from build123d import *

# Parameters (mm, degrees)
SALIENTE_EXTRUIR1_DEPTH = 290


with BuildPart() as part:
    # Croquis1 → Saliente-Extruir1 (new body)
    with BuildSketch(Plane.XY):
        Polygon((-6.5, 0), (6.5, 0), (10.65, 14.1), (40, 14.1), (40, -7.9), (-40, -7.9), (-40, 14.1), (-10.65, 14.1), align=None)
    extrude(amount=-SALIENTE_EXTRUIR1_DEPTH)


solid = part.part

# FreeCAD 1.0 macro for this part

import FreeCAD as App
import Part
import Sketcher

doc = App.newDocument("Part")
params = doc.addObject("Spreadsheet::Sheet", "Params")
for row, (alias, value) in enumerate([
    ("sketch1_width", "13 mm"),
    ("sketch1_width2", "80 mm"),
    ("sketch1_height", "22 mm"),
    ("sketch1_width3", "29.35 mm"),
    ("pad1_length", "290 mm"),
], start=1):
    params.set(f"A{row}", alias)
    params.set(f"B{row}", "=" + value)
    params.setAlias(f"B{row}", alias)

body = doc.addObject("PartDesign::Body", "Body")

sketch1 = body.newObject("Sketcher::SketchObject", "Sketch")
sketch1.AttachmentSupport = (doc.getObject("XY_Plane"), [""])
sketch1.MapMode = "FlatFace"
sketch1.addGeometry(Part.LineSegment(App.Vector(6.5, 0, 0), App.Vector(-6.5, 0, 0)), False)
sketch1.addGeometry(Part.LineSegment(App.Vector(-6.5, 0, 0), App.Vector(-10.65, 14.1, 0)), False)
sketch1.addGeometry(Part.LineSegment(App.Vector(-10.65, 14.1, 0), App.Vector(-40, 14.1, 0)), False)
sketch1.addGeometry(Part.LineSegment(App.Vector(-40, 14.1, 0), App.Vector(-40, -7.9, 0)), False)
sketch1.addGeometry(Part.LineSegment(App.Vector(-40, -7.9, 0), App.Vector(40, -7.9, 0)), False)
sketch1.addGeometry(Part.LineSegment(App.Vector(40, -7.9, 0), App.Vector(40, 14.1, 0)), False)
sketch1.addGeometry(Part.LineSegment(App.Vector(40, 14.1, 0), App.Vector(10.65, 14.1, 0)), False)
sketch1.addGeometry(Part.LineSegment(App.Vector(10.65, 14.1, 0), App.Vector(6.5, 0, 0)), False)
sketch1.addConstraint(Sketcher.Constraint("Coincident", 0, 2, 1, 1))
sketch1.addConstraint(Sketcher.Constraint("Coincident", 1, 2, 2, 1))
sketch1.addConstraint(Sketcher.Constraint("Coincident", 2, 2, 3, 1))
sketch1.addConstraint(Sketcher.Constraint("Coincident", 3, 2, 4, 1))
sketch1.addConstraint(Sketcher.Constraint("Coincident", 4, 2, 5, 1))
sketch1.addConstraint(Sketcher.Constraint("Coincident", 5, 2, 6, 1))
sketch1.addConstraint(Sketcher.Constraint("Coincident", 6, 2, 7, 1))
sketch1.addConstraint(Sketcher.Constraint("Coincident", 7, 2, 0, 1))
sketch1.addConstraint(Sketcher.Constraint("Horizontal", 0))
sketch1.addConstraint(Sketcher.Constraint("Horizontal", 2))
sketch1.addConstraint(Sketcher.Constraint("Vertical", 3))
sketch1.addConstraint(Sketcher.Constraint("Horizontal", 4))
sketch1.addConstraint(Sketcher.Constraint("Vertical", 5))
sketch1.addConstraint(Sketcher.Constraint("Horizontal", 6))
sketch1.addConstraint(Sketcher.Constraint("Symmetric", 0, 2, 7, 2, -1, 1))
sketch1.addConstraint(Sketcher.Constraint("Symmetric", 2, 2, 5, 2, -2))
sketch1.addConstraint(Sketcher.Constraint("Equal", 2, 6))
sketch1.addConstraint(Sketcher.Constraint("DistanceX", 0, 2, 0, 1, 13.0))
sketch1.addConstraint(Sketcher.Constraint("DistanceX", 4, 1, 4, 2, 80.0))
sketch1.addConstraint(Sketcher.Constraint("DistanceY", 3, 2, 3, 1, 22.0))
sketch1.addConstraint(Sketcher.Constraint("DistanceX", 2, 2, 2, 1, 29.35))
sketch1.addConstraint(Sketcher.Constraint("DistanceY", -1, 1, 1, 2, 14.1))
sketch1.setExpression("Constraints[17]", "Params.sketch1_width")
sketch1.setExpression("Constraints[18]", "Params.sketch1_width2")
sketch1.setExpression("Constraints[19]", "Params.sketch1_height")
sketch1.setExpression("Constraints[20]", "Params.sketch1_width3")
pad1 = body.newObject("PartDesign::Pad", "Pad")
pad1.Profile = sketch1
pad1.setExpression("Length", "Params.pad1_length")
pad1.Reversed = True

doc.recompute()
